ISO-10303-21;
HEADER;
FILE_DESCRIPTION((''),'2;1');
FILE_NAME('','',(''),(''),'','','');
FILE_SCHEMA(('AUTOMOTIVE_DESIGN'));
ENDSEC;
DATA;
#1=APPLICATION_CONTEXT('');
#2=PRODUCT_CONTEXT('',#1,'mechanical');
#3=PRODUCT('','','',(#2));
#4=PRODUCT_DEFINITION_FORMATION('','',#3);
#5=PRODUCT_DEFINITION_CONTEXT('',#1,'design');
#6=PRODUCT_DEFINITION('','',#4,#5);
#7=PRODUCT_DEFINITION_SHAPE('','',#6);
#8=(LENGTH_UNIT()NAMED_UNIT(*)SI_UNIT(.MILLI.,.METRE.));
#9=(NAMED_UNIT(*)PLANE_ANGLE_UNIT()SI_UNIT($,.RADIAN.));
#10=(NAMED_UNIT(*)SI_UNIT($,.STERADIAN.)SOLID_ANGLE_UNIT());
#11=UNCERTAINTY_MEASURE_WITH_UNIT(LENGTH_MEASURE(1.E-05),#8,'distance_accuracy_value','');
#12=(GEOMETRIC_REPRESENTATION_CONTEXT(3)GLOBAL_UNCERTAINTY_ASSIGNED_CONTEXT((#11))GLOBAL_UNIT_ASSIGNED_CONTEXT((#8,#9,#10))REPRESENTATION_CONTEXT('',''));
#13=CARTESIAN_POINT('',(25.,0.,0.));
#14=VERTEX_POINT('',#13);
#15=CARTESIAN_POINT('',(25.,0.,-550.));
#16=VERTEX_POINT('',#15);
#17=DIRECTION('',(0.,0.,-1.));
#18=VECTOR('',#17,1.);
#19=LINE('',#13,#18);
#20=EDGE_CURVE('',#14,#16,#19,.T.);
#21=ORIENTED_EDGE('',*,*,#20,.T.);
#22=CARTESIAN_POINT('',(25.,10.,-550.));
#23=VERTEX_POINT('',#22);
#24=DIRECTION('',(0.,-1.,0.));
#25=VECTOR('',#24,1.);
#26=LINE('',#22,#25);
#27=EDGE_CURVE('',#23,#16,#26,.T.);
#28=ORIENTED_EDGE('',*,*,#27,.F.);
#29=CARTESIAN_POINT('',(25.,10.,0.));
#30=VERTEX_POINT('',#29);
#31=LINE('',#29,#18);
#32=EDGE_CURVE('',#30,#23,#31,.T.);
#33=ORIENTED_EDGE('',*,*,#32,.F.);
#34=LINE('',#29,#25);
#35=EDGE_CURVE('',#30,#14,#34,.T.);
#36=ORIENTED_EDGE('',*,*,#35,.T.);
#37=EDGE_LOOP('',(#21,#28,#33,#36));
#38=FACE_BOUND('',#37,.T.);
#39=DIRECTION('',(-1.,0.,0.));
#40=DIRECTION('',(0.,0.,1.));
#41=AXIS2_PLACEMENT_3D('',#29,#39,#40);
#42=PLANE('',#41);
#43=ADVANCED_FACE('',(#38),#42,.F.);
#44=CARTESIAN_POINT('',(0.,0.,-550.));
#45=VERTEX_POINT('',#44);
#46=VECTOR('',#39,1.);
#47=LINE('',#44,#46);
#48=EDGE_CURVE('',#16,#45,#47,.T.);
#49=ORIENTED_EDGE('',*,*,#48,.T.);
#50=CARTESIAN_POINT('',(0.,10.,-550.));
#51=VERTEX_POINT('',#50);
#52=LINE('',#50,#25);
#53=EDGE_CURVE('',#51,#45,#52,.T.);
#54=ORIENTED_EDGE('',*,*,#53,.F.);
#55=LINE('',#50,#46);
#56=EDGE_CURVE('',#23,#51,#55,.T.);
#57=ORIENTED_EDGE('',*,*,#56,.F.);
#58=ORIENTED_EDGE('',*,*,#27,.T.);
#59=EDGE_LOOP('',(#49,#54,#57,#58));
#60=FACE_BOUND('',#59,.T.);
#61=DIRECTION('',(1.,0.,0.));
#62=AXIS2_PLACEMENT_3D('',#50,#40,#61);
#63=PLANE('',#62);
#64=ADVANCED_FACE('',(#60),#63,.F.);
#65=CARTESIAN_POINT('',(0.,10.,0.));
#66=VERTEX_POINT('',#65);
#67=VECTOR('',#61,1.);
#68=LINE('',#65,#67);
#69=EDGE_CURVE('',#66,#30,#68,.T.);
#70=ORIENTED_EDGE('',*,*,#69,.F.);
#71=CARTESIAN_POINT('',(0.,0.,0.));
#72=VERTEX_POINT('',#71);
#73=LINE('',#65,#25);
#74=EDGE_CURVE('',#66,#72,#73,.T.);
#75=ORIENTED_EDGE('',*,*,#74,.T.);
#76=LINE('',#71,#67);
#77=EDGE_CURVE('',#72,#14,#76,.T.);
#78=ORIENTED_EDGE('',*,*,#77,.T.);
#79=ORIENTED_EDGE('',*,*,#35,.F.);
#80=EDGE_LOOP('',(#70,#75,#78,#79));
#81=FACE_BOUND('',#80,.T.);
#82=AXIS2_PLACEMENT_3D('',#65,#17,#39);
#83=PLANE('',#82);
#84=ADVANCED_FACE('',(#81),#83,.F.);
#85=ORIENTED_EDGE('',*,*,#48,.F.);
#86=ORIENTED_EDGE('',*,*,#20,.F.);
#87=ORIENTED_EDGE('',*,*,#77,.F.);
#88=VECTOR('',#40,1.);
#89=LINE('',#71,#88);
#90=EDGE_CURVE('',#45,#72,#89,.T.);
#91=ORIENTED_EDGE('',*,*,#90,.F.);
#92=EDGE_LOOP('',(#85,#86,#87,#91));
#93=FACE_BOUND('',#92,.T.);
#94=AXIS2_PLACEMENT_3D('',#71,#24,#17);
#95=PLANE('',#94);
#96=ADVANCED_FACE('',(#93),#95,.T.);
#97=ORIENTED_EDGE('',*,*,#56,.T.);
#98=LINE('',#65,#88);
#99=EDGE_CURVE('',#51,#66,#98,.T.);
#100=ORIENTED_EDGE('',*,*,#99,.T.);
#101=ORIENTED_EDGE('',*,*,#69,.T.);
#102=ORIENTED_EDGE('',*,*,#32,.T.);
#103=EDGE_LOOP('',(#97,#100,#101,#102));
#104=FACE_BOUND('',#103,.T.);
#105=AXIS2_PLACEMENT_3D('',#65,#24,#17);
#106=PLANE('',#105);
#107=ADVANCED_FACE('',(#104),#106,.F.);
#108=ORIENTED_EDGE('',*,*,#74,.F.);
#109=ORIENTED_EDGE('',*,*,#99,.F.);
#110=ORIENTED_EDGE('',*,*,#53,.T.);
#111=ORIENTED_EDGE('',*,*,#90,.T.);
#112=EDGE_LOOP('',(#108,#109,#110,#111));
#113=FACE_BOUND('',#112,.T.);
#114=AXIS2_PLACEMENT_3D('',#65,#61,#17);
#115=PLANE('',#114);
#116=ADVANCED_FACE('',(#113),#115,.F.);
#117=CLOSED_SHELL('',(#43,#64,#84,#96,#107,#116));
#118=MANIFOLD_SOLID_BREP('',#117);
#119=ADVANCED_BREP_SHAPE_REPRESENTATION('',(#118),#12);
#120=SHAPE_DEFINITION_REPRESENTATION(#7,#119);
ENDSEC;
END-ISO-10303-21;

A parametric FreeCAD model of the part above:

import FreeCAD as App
import Part
import Sketcher


def add_polygon(sketch, points):
    """Adds a closed chain of lines whose ends are joined by coincident constraints."""
    first, n = sketch.GeometryCount, len(points)
    for a, b in zip(points, points[1:] + points[:1]):
        sketch.addGeometry(Part.LineSegment(App.Vector(*a, 0), App.Vector(*b, 0)), False)
    for i in range(n):
        sketch.addConstraint(Sketcher.Constraint("Coincident", first + i, 2, first + (i + 1) % n, 1))

doc = App.newDocument("Part")
body = doc.addObject("PartDesign::Body", "Body")

# Sketch on XZ plane
sketch1 = body.newObject("Sketcher::SketchObject", "Sketch")
sketch1.AttachmentSupport = (doc.getObject("XZ_Plane"), [""])
sketch1.MapMode = "FlatFace"
add_polygon(sketch1, [(0, -550), (0, 0), (25, 0), (25, -550)])  # lines 0-3
sketch1.addConstraint(Sketcher.Constraint("Vertical", 0))
sketch1.addConstraint(Sketcher.Constraint("Horizontal", 1))
sketch1.addConstraint(Sketcher.Constraint("Vertical", 2))
sketch1.addConstraint(Sketcher.Constraint("Horizontal", 3))
sketch1.addConstraint(Sketcher.Constraint("Coincident", 0, 2, -1, 1))
sketch1.addConstraint(Sketcher.Constraint("DistanceX", 1, 1, 1, 2, 25.0))
sketch1.addConstraint(Sketcher.Constraint("DistanceY", 0, 1, 0, 2, 550.0))
pad1 = body.newObject("PartDesign::Pad", "Pad")
pad1.Profile = sketch1
pad1.Length = 10
pad1.Reversed = True

doc.recompute()
